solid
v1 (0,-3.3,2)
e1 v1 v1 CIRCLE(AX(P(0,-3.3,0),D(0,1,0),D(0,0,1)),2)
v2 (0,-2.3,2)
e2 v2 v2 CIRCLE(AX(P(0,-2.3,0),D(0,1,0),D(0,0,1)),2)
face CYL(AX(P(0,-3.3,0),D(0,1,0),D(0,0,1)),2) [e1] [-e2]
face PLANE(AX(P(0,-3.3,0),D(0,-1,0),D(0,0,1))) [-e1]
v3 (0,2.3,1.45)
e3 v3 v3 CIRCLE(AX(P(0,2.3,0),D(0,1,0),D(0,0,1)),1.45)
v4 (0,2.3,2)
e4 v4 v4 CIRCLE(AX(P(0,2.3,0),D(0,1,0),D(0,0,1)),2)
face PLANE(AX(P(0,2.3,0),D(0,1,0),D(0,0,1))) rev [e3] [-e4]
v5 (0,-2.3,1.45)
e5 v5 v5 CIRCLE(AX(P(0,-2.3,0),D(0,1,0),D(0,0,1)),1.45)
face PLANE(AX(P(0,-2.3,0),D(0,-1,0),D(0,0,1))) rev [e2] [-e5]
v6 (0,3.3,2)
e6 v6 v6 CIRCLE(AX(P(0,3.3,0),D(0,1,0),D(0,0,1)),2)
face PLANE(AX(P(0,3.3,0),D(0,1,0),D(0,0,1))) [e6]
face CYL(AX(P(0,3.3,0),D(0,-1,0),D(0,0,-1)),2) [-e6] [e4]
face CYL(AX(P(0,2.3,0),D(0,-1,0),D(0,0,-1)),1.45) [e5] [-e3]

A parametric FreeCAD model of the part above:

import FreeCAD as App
import Part
import Sketcher

doc = App.newDocument("Part")
params = doc.addObject("Spreadsheet::Sheet", "Params")
for row, (alias, value) in enumerate([
    ("sketch1_diameter", "2.9 mm"),
    ("pad1_length", "4.6 mm"),
    ("sketch2_diameter", "4 mm"),
    ("pad2_length", "1 mm"),
], start=1):
    params.set(f"A{row}", alias)
    params.set(f"B{row}", "=" + value)
    params.setAlias(f"B{row}", alias)

body = doc.addObject("PartDesign::Body", "Body")

sketch1 = doc.addObject("Sketcher::SketchObject", "Sketch")
body.addObject(sketch1)
sketch1.AttachmentSupport = (doc.XZ_Plane, [""])
sketch1.MapMode = "FlatFace"
sketch1.addGeometry(Part.Circle(App.Vector(0, 0, 0), App.Vector(0, 0, 1), 1.4), False)
sketch1.addConstraint([
    Sketcher.Constraint("Coincident", 0, 3, -1, 1),
    Sketcher.Constraint("Diameter", 0, 2.9),
])
sketch1.setExpression("Constraints[1]", "Params.sketch1_diameter")
pad1 = doc.addObject("PartDesign::Pad", "Pad")
body.addObject(pad1)
pad1.Profile = sketch1
pad1.setExpression("Length", "Params.pad1_length")
pad1.Midplane = True

sketch2 = doc.addObject("Sketcher::SketchObject", "Sketch001")
body.addObject(sketch2)
sketch2.AttachmentSupport = (doc.XZ_Plane, [""])
sketch2.MapMode = "FlatFace"
sketch2.AttachmentOffset = App.Placement(App.Vector(0, 0, -2.3), App.Rotation())
sketch2.addGeometry(Part.Circle(App.Vector(0, 0, 0), App.Vector(0, 0, 1), 2), False)
sketch2.addConstraint([
    Sketcher.Constraint("Coincident", 0, 3, -1, 1),
    Sketcher.Constraint("Diameter", 0, 4.0),
])
sketch2.setExpression("Constraints[1]", "Params.sketch2_diameter")
pad2 = doc.addObject("PartDesign::Pad", "Pad001")
body.addObject(pad2)
pad2.Profile = sketch2
pad2.setExpression("Length", "Params.pad2_length")
pad2.Reversed = True
doc.recompute()

mirrored = doc.addObject("PartDesign::Mirrored", "Mirrored")
body.addObject(mirrored)
mirrored.Originals = [pad2]
mirrored.MirrorPlane = (doc.XZ_Plane, [""])
body.Tip = mirrored

doc.recompute()
